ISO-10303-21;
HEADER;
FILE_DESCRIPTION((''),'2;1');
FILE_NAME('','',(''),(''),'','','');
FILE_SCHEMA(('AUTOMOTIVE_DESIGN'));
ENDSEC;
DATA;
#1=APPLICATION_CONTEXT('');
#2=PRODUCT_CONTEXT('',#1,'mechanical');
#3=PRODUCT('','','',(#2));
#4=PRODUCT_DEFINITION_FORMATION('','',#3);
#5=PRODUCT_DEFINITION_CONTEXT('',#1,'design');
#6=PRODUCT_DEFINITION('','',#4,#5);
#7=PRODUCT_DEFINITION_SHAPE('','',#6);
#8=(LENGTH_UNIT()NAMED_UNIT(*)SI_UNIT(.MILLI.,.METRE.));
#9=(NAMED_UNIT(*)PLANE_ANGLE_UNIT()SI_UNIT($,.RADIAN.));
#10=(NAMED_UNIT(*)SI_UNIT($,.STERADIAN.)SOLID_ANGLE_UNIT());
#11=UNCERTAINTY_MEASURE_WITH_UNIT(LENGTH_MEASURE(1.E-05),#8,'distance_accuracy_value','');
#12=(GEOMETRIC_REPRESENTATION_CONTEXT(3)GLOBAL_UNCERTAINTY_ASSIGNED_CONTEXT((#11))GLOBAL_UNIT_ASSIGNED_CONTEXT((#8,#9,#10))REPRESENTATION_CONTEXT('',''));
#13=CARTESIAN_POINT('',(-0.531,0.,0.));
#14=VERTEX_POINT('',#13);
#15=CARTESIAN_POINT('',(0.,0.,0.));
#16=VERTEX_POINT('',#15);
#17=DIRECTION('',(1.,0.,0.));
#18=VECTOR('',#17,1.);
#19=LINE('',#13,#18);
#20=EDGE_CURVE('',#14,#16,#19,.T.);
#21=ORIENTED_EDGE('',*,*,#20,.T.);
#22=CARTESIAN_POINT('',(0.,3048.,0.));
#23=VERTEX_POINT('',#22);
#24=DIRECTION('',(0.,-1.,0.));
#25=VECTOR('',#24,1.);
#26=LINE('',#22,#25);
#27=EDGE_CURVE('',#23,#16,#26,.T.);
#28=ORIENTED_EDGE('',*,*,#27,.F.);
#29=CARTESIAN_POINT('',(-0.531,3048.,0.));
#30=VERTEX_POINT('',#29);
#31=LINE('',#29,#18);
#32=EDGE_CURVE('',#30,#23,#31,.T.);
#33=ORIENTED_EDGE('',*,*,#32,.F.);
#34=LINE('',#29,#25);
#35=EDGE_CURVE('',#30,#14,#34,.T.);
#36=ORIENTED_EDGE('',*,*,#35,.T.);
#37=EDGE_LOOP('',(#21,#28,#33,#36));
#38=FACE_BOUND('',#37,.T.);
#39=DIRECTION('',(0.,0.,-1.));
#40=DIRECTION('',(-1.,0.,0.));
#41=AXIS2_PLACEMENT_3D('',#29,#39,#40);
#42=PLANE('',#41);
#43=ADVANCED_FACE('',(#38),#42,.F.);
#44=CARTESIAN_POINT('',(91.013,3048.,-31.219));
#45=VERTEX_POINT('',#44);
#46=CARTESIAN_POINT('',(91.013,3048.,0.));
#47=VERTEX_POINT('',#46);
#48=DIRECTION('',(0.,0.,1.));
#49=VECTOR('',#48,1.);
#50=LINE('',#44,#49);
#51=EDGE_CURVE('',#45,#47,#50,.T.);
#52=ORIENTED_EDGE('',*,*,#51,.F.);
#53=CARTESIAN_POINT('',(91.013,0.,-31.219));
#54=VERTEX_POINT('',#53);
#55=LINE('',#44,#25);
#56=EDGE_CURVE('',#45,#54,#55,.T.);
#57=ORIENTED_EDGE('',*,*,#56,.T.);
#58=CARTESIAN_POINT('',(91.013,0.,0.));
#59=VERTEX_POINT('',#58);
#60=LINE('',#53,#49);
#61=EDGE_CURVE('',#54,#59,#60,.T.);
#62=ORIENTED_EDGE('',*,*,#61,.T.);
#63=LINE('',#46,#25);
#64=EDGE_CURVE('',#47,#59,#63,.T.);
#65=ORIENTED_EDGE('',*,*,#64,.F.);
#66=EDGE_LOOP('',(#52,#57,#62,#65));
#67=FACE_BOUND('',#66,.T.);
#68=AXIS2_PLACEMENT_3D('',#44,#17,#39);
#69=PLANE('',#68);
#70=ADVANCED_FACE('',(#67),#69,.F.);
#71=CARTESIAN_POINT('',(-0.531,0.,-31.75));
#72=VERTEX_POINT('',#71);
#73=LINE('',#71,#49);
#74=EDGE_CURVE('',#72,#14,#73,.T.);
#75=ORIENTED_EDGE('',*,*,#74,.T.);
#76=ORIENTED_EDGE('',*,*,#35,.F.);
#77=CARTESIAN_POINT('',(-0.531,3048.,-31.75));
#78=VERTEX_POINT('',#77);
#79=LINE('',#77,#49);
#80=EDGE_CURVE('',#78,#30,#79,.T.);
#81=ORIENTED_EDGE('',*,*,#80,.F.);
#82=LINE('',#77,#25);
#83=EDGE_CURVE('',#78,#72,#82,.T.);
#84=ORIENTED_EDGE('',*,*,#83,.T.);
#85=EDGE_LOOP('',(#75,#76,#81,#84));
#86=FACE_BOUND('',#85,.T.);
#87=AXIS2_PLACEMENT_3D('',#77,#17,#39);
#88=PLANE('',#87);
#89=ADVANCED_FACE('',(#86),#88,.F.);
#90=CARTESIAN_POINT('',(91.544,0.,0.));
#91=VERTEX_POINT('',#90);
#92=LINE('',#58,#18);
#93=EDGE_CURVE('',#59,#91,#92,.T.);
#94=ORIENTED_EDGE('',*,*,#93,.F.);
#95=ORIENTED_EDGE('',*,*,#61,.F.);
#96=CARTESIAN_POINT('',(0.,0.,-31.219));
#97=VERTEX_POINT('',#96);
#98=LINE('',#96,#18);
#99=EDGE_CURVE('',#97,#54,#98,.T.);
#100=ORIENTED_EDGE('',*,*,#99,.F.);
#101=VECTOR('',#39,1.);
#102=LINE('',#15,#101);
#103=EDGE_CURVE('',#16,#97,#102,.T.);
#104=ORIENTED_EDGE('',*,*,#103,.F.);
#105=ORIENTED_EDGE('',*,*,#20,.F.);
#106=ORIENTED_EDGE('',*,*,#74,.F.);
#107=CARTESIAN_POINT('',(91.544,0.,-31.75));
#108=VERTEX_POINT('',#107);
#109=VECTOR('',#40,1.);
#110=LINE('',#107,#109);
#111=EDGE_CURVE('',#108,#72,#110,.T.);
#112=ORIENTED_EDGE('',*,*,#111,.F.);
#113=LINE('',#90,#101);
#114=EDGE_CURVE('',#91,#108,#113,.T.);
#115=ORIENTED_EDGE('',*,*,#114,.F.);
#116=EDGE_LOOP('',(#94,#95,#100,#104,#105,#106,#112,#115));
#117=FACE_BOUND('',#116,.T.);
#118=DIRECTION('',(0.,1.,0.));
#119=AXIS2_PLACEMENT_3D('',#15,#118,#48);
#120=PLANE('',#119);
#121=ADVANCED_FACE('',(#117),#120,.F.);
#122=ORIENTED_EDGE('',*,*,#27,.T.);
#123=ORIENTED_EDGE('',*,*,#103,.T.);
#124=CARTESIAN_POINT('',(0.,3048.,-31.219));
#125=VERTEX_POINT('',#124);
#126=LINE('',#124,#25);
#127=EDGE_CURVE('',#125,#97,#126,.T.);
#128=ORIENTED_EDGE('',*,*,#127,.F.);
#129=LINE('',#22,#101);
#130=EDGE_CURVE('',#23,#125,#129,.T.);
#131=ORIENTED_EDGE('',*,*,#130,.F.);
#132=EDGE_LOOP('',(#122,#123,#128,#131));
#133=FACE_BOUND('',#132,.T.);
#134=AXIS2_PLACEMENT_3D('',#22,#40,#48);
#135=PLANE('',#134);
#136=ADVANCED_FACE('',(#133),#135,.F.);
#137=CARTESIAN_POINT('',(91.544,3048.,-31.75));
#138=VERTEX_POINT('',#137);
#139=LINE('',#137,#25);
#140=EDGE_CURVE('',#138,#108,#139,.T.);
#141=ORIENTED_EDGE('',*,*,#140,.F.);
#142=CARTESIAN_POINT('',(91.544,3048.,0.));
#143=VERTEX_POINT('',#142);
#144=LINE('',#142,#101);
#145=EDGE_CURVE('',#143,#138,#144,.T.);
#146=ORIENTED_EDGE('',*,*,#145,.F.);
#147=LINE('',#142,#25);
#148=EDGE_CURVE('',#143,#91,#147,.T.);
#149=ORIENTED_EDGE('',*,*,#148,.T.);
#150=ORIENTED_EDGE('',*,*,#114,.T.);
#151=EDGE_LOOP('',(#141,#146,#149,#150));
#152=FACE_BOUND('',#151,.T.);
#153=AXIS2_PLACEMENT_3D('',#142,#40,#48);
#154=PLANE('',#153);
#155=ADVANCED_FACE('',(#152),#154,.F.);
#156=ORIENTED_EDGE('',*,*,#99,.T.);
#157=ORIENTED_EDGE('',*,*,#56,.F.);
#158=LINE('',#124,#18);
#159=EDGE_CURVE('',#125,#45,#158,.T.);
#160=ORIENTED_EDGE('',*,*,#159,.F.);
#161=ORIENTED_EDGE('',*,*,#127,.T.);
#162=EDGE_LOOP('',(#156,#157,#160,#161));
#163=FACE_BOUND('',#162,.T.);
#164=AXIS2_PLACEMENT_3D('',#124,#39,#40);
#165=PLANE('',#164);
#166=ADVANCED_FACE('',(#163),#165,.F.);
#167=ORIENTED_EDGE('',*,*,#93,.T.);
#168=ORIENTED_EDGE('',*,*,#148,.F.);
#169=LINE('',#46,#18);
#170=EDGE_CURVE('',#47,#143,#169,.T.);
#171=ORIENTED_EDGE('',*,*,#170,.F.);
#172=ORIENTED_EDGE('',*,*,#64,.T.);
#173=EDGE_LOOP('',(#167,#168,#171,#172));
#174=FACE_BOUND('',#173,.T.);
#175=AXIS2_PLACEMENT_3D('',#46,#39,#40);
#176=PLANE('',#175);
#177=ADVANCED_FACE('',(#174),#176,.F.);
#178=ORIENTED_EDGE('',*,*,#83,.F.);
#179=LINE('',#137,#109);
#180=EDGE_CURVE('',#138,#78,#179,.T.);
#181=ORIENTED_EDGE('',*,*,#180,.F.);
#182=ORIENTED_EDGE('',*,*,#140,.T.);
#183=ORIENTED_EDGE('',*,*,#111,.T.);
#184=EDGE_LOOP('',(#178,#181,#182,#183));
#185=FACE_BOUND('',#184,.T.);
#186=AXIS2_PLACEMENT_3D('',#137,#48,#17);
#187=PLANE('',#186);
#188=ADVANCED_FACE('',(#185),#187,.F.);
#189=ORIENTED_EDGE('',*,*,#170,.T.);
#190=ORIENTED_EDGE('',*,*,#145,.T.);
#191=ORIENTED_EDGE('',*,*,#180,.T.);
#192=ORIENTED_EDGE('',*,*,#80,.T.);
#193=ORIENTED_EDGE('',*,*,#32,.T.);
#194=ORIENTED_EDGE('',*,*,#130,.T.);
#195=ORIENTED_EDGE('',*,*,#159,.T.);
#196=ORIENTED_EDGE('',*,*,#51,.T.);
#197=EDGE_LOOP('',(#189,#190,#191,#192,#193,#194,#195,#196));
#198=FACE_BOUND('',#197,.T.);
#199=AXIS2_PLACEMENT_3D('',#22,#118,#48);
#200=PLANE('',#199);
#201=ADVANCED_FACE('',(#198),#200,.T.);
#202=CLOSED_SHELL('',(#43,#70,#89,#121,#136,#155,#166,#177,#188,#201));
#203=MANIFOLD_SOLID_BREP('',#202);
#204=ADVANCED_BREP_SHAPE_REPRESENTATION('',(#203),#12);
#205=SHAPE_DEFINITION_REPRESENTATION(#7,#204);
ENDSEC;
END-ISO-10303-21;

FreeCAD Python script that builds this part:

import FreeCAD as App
import Part
import Sketcher

V = App.Vector
Q = App.Units.Quantity


def add_polygon(sketch, points):
    """Adds a closed chain of lines whose ends are joined by coincident constraints."""
    first, n = sketch.GeometryCount, len(points)
    for a, b in zip(points, points[1:] + points[:1]):
        sketch.addGeometry(Part.LineSegment(App.Vector(*a, 0), App.Vector(*b, 0)), False)
    for i in range(n):
        sketch.addConstraint(Sketcher.Constraint("Coincident", first + i, 2, first + (i + 1) % n, 1))

doc = App.newDocument("Part")
body = doc.addObject("PartDesign::Body", "Body")

sketch1 = body.newObject("Sketcher::SketchObject", "Sketch")
sketch1.AttachmentSupport = (doc.getObject("XZ_Plane"), [""])
sketch1.MapMode = "FlatFace"
add_polygon(sketch1, [(0, 0), (0, -31.2), (91, -31.2), (91, 0), (91.5, 0), (91.5, -31.8), (-0.5, -31.8), (-0.5, 0)])
sketch1.addConstraint([
    Sketcher.Constraint("Vertical", 0),
    Sketcher.Constraint("Horizontal", 1),
    Sketcher.Constraint("Vertical", 2),
    Sketcher.Constraint("Horizontal", 3),
    Sketcher.Constraint("Vertical", 4),
    Sketcher.Constraint("Horizontal", 5),
    Sketcher.Constraint("Vertical", 6),
    Sketcher.Constraint("Horizontal", 7),
    Sketcher.Constraint("Coincident", 7, 2, -1, 1),
    Sketcher.Constraint("PointOnObject", 2, 2, -1),
    Sketcher.Constraint("Equal", 3, 7),
    Sketcher.Constraint("DistanceY", 4, 2, 4, 1, Q("1.25 in")),
    Sketcher.Constraint("DistanceX", 5, 2, 5, 1, Q("3.625 in")),
    Sketcher.Constraint("DistanceX", 1, 1, 1, 2, Q("91.013 mm")),
    Sketcher.Constraint("DistanceY", 0, 2, 0, 1, Q("31.219 mm")),
])
pad1 = body.newObject("PartDesign::Pad", "Pad")
pad1.Profile = sketch1
pad1.Length = Q("120 in")
pad1.Reversed = True

doc.recompute()
